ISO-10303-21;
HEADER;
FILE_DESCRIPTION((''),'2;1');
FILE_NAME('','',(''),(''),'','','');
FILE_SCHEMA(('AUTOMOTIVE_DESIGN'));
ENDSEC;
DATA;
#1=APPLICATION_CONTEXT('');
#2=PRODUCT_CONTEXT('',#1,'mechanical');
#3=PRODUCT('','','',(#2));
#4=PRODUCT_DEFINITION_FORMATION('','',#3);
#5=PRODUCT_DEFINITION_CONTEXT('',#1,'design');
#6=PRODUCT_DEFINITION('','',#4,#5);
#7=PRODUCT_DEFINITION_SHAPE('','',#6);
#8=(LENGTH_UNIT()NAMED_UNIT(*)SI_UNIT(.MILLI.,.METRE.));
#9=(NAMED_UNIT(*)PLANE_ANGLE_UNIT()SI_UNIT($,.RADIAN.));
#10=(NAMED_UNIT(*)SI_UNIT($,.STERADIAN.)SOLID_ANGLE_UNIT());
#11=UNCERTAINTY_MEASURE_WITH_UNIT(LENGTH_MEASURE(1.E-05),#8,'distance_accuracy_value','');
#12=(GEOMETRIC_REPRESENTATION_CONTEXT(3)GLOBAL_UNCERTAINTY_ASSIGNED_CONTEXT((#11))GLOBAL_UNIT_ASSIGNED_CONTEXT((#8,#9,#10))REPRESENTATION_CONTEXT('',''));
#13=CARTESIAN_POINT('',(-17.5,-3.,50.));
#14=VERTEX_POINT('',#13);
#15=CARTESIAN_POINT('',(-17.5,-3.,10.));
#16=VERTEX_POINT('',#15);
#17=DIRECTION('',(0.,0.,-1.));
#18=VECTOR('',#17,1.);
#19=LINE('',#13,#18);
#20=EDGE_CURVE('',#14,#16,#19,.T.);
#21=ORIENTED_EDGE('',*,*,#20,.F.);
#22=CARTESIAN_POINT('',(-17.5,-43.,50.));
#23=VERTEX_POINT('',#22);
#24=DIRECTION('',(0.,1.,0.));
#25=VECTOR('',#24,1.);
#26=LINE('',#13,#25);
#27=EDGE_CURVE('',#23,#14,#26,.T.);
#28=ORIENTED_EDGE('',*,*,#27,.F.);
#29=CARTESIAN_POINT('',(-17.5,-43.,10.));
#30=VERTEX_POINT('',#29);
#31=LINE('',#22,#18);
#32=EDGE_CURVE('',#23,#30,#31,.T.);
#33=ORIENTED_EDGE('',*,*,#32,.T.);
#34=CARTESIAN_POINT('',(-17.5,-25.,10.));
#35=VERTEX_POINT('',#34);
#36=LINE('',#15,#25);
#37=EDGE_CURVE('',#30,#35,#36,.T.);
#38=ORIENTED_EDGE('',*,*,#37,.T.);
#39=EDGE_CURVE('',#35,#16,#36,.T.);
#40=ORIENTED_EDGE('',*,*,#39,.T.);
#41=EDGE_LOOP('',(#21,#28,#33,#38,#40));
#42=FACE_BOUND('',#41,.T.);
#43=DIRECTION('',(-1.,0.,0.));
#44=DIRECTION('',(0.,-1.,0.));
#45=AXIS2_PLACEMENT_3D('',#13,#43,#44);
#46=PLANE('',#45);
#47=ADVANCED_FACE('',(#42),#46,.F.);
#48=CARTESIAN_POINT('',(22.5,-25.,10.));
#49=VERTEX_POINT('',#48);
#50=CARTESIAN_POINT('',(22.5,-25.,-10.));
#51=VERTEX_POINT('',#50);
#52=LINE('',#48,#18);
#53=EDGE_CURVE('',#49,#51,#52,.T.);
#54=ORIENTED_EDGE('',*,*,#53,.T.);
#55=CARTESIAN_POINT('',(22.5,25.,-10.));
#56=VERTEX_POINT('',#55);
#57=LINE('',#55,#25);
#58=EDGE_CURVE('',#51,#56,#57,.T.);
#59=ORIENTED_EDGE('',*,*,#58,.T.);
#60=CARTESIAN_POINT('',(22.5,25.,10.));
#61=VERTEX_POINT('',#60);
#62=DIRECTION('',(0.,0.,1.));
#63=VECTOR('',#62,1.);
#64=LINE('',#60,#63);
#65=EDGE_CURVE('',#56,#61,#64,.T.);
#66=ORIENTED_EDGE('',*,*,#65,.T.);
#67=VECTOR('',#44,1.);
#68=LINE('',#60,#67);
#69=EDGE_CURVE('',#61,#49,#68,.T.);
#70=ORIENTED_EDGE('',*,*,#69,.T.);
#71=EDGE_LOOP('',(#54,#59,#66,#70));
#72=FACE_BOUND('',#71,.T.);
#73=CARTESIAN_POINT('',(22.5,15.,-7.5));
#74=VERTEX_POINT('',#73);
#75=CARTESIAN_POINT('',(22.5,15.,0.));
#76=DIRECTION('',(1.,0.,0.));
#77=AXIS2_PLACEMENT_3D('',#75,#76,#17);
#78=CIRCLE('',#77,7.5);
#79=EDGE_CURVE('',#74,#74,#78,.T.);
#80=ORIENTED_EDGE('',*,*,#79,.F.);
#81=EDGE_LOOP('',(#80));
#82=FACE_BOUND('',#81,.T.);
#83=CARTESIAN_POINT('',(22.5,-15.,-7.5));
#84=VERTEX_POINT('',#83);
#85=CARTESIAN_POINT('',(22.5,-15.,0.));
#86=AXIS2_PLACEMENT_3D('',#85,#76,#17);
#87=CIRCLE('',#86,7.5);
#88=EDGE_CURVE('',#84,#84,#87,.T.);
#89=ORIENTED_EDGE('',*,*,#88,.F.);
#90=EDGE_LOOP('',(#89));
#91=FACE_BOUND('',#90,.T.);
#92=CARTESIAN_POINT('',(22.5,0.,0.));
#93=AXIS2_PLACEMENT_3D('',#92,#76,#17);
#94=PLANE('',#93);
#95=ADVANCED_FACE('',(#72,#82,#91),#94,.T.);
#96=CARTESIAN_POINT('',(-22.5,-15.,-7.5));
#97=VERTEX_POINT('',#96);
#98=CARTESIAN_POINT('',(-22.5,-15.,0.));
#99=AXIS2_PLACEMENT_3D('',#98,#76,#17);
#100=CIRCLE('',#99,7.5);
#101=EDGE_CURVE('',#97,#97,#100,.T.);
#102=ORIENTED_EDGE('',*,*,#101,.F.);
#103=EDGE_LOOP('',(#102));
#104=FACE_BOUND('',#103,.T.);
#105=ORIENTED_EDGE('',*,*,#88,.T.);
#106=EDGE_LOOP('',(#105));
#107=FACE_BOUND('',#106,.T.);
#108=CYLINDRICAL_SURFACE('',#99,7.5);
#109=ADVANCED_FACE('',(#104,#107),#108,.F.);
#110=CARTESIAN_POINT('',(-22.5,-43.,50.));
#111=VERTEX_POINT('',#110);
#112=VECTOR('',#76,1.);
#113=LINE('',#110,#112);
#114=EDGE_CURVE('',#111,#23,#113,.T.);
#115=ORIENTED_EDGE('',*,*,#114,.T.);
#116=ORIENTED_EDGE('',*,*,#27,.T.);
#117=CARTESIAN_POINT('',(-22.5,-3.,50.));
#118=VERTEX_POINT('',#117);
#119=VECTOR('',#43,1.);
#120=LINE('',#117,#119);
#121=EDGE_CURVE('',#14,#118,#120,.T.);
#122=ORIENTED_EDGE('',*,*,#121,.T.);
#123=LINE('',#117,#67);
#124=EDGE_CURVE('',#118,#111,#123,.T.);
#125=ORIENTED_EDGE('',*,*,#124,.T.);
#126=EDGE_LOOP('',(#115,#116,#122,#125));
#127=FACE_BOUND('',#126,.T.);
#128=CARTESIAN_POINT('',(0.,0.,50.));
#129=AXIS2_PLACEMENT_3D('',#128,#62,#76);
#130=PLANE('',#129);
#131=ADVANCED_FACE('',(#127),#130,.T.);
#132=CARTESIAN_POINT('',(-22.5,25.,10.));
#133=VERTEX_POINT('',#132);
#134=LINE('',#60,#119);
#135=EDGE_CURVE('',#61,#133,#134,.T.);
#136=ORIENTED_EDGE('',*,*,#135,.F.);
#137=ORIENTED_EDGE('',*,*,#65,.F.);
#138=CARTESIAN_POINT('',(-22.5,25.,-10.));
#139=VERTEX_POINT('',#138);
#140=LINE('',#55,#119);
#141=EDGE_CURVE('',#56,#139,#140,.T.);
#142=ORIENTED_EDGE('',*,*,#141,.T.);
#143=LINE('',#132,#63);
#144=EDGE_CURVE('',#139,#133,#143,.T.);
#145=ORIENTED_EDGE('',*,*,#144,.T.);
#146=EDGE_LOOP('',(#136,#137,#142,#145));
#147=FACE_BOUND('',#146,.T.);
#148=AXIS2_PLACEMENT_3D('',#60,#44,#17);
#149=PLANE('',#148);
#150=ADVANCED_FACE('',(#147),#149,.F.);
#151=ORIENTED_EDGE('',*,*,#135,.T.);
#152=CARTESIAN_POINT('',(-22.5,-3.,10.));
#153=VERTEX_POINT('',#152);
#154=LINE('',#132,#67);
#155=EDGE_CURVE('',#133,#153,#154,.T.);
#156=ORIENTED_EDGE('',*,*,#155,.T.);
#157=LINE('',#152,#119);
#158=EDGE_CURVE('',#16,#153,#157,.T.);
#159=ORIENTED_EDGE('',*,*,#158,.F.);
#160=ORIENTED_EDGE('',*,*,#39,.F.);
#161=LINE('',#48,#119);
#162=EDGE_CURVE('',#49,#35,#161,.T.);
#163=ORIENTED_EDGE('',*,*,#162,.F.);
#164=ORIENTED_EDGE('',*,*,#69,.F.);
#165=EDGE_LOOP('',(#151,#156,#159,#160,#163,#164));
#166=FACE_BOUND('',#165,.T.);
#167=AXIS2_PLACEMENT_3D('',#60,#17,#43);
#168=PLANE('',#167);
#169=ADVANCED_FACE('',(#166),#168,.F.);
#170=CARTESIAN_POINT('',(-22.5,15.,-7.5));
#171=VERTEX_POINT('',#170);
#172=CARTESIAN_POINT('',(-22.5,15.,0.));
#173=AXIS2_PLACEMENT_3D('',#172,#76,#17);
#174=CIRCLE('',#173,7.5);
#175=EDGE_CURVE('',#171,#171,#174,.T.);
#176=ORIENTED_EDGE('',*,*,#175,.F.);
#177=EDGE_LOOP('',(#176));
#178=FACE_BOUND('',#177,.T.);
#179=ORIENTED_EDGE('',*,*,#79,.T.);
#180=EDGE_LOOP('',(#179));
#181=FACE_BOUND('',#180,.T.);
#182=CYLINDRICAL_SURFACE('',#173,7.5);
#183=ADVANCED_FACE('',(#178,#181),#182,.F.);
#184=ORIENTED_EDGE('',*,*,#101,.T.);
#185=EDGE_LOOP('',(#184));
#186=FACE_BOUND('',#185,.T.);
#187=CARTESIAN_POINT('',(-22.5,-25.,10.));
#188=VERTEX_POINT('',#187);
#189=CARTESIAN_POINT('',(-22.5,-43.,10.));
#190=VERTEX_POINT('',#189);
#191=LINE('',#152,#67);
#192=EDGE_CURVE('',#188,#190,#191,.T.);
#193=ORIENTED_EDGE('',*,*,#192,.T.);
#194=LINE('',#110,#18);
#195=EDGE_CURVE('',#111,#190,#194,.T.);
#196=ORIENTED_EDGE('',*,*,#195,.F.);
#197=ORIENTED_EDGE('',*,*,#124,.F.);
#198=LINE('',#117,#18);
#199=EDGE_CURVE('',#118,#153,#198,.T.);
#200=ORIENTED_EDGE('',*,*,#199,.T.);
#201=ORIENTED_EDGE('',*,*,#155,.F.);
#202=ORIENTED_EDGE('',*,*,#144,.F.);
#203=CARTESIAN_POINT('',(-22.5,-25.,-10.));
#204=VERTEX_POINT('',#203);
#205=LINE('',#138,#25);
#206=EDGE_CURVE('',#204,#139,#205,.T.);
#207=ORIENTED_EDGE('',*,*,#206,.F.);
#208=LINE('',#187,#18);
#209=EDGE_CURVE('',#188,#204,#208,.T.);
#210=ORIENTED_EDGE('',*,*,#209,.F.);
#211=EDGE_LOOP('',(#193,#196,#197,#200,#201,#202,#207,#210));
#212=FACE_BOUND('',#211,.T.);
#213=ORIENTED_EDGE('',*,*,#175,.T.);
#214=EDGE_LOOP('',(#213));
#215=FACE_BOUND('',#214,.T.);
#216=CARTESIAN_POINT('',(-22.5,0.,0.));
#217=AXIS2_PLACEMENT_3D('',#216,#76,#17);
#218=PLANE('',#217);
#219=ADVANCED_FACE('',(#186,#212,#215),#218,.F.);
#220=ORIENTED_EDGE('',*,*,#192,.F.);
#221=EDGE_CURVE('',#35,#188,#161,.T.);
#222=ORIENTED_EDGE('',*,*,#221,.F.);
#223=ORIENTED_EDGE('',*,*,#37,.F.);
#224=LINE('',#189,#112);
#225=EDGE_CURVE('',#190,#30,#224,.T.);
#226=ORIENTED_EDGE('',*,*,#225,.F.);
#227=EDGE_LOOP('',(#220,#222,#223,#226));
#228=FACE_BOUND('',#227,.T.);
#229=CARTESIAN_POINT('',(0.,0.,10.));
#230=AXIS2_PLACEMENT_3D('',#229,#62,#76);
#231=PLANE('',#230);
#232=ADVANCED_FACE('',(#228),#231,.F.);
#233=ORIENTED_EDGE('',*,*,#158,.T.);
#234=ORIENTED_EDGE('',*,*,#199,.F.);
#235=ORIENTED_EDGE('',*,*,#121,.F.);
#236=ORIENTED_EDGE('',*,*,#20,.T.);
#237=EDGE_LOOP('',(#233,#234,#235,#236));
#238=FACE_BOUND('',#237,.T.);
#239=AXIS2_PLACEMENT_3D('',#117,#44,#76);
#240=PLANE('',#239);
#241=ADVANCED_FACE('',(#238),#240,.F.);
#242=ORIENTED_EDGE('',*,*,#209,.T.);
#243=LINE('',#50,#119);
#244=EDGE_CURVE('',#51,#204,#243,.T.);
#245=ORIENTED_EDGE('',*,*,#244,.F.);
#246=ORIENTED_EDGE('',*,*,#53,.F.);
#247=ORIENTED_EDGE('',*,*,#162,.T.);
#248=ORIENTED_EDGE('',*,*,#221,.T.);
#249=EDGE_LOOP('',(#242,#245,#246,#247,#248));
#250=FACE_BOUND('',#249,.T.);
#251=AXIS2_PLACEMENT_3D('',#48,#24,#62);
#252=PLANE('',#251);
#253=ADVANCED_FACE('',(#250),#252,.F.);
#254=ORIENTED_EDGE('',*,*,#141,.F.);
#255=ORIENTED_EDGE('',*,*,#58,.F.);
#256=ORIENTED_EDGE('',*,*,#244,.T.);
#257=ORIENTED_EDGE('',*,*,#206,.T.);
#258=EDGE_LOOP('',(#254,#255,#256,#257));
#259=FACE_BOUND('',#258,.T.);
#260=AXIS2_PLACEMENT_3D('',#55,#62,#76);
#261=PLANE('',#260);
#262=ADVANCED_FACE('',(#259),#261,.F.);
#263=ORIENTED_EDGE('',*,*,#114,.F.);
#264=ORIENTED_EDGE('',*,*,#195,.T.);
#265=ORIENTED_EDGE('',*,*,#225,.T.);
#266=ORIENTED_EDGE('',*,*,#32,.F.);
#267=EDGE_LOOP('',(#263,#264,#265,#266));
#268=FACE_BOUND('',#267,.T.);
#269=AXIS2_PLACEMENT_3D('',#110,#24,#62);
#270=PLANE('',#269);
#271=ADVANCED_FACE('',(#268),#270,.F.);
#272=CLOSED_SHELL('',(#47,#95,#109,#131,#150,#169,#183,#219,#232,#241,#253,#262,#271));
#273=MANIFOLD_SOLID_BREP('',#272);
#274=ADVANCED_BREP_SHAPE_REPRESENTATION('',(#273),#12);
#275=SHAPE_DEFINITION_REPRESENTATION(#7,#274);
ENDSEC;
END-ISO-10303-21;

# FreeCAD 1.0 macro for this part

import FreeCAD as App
import Part
import Sketcher
Q = App.Units.Quantity

doc = App.newDocument("Part")
params = doc.addObject("Spreadsheet::Sheet", "Params")
for row, (alias, value) in enumerate([
    ("sketch1_width", "50 mm"),
    ("sketch1_height", "20 mm"),
    ("pad1_length", "45 mm"),
    ("sketch2_width", "5 mm"),
    ("sketch2_height", "40 mm"),
    ("pad2_length", "40 mm"),
    ("sketch3_diameter", "15 mm"),
], start=1):
    params.set(f"A{row}", alias)
    params.set(f"B{row}", "=" + value)
    params.setAlias(f"B{row}", alias)

body = doc.addObject("PartDesign::Body", "Body")

sketch1 = doc.addObject("Sketcher::SketchObject", "Sketch")
body.addObject(sketch1)
sketch1.AttachmentSupport = (doc.YZ_Plane, [""])
sketch1.MapMode = "FlatFace"
sketch1.addGeometry([
    Part.LineSegment(App.Vector(25, 10, 0), App.Vector(-25, 10, 0)),
    Part.LineSegment(App.Vector(-25, 10, 0), App.Vector(-25, -10, 0)),
    Part.LineSegment(App.Vector(-25, -10, 0), App.Vector(25, -10, 0)),
    Part.LineSegment(App.Vector(25, -10, 0), App.Vector(25, 10, 0)),
], False)
sketch1.addConstraint([
    Sketcher.Constraint("Coincident", 0, 2, 1, 1),
    Sketcher.Constraint("Coincident", 1, 2, 2, 1),
    Sketcher.Constraint("Coincident", 2, 2, 3, 1),
    Sketcher.Constraint("Coincident", 3, 2, 0, 1),
    Sketcher.Constraint("Horizontal", 0),
    Sketcher.Constraint("Vertical", 1),
    Sketcher.Constraint("Horizontal", 2),
    Sketcher.Constraint("Vertical", 3),
    Sketcher.Constraint("Symmetric", 0, 2, 2, 2, -1, 1),
    Sketcher.Constraint("DistanceX", 0, 2, 0, 1, Q("50 mm")),
    Sketcher.Constraint("DistanceY", 1, 2, 1, 1, Q("20 mm")),
])
sketch1.setExpression("Constraints[9]", "Params.sketch1_width")
sketch1.setExpression("Constraints[10]", "Params.sketch1_height")
pad1 = doc.addObject("PartDesign::Pad", "Pad")
body.addObject(pad1)
pad1.Profile = sketch1
pad1.setExpression("Length", "Params.pad1_length")
pad1.Midplane = True

sketch2 = doc.addObject("Sketcher::SketchObject", "Sketch001")
body.addObject(sketch2)
sketch2.AttachmentSupport = (doc.XY_Plane, [""])
sketch2.MapMode = "FlatFace"
sketch2.AttachmentOffset = App.Placement(App.Vector(0, 0, 10), App.Rotation())
sketch2.addGeometry([
    Part.LineSegment(App.Vector(-22, -3, 0), App.Vector(-22, -43, 0)),
    Part.LineSegment(App.Vector(-22, -43, 0), App.Vector(-18, -43, 0)),
    Part.LineSegment(App.Vector(-18, -43, 0), App.Vector(-18, -3, 0)),
    Part.LineSegment(App.Vector(-18, -3, 0), App.Vector(-22, -3, 0)),
], False)
sketch2.addConstraint([
    Sketcher.Constraint("Coincident", 0, 2, 1, 1),
    Sketcher.Constraint("Coincident", 1, 2, 2, 1),
    Sketcher.Constraint("Coincident", 2, 2, 3, 1),
    Sketcher.Constraint("Coincident", 3, 2, 0, 1),
    Sketcher.Constraint("Vertical", 0),
    Sketcher.Constraint("Horizontal", 1),
    Sketcher.Constraint("Vertical", 2),
    Sketcher.Constraint("Horizontal", 3),
    Sketcher.Constraint("DistanceX", 1, 1, 1, 2, Q("5 mm")),
    Sketcher.Constraint("DistanceY", 0, 2, 0, 1, Q("40 mm")),
    Sketcher.Constraint("DistanceY", 0, 2, -1, 1, Q("43 mm")),
    Sketcher.Constraint("DistanceX", 0, 2, -1, 1, Q("22.5 mm")),
])
sketch2.setExpression("Constraints[8]", "Params.sketch2_width")
sketch2.setExpression("Constraints[9]", "Params.sketch2_height")
pad2 = doc.addObject("PartDesign::Pad", "Pad001")
body.addObject(pad2)
pad2.Profile = sketch2
pad2.setExpression("Length", "Params.pad2_length")

sketch3 = doc.addObject("Sketcher::SketchObject", "Sketch002")
body.addObject(sketch3)
sketch3.AttachmentSupport = (doc.YZ_Plane, [""])
sketch3.MapMode = "FlatFace"
sketch3.addGeometry([
    Part.Circle(App.Vector(-15, 0, 0), App.Vector(0, 0, 1), 8),
    Part.Circle(App.Vector(15, 0, 0), App.Vector(0, 0, 1), 8),
], False)
sketch3.addConstraint([
    Sketcher.Constraint("Equal", 0, 1),
    Sketcher.Constraint("Symmetric", 0, 3, 1, 3, -1, 1),
    Sketcher.Constraint("PointOnObject", 0, 3, -1),
    Sketcher.Constraint("Diameter", 0, Q("15 mm")),
    Sketcher.Constraint("DistanceX", 0, 3, -1, 1, Q("15 mm")),
])
sketch3.setExpression("Constraints[3]", "Params.sketch3_diameter")
pocket1 = doc.addObject("PartDesign::Pocket", "Pocket")
body.addObject(pocket1)
pocket1.Profile = sketch3
pocket1.Type = "ThroughAll"
pocket1.Midplane = True

doc.recompute()
